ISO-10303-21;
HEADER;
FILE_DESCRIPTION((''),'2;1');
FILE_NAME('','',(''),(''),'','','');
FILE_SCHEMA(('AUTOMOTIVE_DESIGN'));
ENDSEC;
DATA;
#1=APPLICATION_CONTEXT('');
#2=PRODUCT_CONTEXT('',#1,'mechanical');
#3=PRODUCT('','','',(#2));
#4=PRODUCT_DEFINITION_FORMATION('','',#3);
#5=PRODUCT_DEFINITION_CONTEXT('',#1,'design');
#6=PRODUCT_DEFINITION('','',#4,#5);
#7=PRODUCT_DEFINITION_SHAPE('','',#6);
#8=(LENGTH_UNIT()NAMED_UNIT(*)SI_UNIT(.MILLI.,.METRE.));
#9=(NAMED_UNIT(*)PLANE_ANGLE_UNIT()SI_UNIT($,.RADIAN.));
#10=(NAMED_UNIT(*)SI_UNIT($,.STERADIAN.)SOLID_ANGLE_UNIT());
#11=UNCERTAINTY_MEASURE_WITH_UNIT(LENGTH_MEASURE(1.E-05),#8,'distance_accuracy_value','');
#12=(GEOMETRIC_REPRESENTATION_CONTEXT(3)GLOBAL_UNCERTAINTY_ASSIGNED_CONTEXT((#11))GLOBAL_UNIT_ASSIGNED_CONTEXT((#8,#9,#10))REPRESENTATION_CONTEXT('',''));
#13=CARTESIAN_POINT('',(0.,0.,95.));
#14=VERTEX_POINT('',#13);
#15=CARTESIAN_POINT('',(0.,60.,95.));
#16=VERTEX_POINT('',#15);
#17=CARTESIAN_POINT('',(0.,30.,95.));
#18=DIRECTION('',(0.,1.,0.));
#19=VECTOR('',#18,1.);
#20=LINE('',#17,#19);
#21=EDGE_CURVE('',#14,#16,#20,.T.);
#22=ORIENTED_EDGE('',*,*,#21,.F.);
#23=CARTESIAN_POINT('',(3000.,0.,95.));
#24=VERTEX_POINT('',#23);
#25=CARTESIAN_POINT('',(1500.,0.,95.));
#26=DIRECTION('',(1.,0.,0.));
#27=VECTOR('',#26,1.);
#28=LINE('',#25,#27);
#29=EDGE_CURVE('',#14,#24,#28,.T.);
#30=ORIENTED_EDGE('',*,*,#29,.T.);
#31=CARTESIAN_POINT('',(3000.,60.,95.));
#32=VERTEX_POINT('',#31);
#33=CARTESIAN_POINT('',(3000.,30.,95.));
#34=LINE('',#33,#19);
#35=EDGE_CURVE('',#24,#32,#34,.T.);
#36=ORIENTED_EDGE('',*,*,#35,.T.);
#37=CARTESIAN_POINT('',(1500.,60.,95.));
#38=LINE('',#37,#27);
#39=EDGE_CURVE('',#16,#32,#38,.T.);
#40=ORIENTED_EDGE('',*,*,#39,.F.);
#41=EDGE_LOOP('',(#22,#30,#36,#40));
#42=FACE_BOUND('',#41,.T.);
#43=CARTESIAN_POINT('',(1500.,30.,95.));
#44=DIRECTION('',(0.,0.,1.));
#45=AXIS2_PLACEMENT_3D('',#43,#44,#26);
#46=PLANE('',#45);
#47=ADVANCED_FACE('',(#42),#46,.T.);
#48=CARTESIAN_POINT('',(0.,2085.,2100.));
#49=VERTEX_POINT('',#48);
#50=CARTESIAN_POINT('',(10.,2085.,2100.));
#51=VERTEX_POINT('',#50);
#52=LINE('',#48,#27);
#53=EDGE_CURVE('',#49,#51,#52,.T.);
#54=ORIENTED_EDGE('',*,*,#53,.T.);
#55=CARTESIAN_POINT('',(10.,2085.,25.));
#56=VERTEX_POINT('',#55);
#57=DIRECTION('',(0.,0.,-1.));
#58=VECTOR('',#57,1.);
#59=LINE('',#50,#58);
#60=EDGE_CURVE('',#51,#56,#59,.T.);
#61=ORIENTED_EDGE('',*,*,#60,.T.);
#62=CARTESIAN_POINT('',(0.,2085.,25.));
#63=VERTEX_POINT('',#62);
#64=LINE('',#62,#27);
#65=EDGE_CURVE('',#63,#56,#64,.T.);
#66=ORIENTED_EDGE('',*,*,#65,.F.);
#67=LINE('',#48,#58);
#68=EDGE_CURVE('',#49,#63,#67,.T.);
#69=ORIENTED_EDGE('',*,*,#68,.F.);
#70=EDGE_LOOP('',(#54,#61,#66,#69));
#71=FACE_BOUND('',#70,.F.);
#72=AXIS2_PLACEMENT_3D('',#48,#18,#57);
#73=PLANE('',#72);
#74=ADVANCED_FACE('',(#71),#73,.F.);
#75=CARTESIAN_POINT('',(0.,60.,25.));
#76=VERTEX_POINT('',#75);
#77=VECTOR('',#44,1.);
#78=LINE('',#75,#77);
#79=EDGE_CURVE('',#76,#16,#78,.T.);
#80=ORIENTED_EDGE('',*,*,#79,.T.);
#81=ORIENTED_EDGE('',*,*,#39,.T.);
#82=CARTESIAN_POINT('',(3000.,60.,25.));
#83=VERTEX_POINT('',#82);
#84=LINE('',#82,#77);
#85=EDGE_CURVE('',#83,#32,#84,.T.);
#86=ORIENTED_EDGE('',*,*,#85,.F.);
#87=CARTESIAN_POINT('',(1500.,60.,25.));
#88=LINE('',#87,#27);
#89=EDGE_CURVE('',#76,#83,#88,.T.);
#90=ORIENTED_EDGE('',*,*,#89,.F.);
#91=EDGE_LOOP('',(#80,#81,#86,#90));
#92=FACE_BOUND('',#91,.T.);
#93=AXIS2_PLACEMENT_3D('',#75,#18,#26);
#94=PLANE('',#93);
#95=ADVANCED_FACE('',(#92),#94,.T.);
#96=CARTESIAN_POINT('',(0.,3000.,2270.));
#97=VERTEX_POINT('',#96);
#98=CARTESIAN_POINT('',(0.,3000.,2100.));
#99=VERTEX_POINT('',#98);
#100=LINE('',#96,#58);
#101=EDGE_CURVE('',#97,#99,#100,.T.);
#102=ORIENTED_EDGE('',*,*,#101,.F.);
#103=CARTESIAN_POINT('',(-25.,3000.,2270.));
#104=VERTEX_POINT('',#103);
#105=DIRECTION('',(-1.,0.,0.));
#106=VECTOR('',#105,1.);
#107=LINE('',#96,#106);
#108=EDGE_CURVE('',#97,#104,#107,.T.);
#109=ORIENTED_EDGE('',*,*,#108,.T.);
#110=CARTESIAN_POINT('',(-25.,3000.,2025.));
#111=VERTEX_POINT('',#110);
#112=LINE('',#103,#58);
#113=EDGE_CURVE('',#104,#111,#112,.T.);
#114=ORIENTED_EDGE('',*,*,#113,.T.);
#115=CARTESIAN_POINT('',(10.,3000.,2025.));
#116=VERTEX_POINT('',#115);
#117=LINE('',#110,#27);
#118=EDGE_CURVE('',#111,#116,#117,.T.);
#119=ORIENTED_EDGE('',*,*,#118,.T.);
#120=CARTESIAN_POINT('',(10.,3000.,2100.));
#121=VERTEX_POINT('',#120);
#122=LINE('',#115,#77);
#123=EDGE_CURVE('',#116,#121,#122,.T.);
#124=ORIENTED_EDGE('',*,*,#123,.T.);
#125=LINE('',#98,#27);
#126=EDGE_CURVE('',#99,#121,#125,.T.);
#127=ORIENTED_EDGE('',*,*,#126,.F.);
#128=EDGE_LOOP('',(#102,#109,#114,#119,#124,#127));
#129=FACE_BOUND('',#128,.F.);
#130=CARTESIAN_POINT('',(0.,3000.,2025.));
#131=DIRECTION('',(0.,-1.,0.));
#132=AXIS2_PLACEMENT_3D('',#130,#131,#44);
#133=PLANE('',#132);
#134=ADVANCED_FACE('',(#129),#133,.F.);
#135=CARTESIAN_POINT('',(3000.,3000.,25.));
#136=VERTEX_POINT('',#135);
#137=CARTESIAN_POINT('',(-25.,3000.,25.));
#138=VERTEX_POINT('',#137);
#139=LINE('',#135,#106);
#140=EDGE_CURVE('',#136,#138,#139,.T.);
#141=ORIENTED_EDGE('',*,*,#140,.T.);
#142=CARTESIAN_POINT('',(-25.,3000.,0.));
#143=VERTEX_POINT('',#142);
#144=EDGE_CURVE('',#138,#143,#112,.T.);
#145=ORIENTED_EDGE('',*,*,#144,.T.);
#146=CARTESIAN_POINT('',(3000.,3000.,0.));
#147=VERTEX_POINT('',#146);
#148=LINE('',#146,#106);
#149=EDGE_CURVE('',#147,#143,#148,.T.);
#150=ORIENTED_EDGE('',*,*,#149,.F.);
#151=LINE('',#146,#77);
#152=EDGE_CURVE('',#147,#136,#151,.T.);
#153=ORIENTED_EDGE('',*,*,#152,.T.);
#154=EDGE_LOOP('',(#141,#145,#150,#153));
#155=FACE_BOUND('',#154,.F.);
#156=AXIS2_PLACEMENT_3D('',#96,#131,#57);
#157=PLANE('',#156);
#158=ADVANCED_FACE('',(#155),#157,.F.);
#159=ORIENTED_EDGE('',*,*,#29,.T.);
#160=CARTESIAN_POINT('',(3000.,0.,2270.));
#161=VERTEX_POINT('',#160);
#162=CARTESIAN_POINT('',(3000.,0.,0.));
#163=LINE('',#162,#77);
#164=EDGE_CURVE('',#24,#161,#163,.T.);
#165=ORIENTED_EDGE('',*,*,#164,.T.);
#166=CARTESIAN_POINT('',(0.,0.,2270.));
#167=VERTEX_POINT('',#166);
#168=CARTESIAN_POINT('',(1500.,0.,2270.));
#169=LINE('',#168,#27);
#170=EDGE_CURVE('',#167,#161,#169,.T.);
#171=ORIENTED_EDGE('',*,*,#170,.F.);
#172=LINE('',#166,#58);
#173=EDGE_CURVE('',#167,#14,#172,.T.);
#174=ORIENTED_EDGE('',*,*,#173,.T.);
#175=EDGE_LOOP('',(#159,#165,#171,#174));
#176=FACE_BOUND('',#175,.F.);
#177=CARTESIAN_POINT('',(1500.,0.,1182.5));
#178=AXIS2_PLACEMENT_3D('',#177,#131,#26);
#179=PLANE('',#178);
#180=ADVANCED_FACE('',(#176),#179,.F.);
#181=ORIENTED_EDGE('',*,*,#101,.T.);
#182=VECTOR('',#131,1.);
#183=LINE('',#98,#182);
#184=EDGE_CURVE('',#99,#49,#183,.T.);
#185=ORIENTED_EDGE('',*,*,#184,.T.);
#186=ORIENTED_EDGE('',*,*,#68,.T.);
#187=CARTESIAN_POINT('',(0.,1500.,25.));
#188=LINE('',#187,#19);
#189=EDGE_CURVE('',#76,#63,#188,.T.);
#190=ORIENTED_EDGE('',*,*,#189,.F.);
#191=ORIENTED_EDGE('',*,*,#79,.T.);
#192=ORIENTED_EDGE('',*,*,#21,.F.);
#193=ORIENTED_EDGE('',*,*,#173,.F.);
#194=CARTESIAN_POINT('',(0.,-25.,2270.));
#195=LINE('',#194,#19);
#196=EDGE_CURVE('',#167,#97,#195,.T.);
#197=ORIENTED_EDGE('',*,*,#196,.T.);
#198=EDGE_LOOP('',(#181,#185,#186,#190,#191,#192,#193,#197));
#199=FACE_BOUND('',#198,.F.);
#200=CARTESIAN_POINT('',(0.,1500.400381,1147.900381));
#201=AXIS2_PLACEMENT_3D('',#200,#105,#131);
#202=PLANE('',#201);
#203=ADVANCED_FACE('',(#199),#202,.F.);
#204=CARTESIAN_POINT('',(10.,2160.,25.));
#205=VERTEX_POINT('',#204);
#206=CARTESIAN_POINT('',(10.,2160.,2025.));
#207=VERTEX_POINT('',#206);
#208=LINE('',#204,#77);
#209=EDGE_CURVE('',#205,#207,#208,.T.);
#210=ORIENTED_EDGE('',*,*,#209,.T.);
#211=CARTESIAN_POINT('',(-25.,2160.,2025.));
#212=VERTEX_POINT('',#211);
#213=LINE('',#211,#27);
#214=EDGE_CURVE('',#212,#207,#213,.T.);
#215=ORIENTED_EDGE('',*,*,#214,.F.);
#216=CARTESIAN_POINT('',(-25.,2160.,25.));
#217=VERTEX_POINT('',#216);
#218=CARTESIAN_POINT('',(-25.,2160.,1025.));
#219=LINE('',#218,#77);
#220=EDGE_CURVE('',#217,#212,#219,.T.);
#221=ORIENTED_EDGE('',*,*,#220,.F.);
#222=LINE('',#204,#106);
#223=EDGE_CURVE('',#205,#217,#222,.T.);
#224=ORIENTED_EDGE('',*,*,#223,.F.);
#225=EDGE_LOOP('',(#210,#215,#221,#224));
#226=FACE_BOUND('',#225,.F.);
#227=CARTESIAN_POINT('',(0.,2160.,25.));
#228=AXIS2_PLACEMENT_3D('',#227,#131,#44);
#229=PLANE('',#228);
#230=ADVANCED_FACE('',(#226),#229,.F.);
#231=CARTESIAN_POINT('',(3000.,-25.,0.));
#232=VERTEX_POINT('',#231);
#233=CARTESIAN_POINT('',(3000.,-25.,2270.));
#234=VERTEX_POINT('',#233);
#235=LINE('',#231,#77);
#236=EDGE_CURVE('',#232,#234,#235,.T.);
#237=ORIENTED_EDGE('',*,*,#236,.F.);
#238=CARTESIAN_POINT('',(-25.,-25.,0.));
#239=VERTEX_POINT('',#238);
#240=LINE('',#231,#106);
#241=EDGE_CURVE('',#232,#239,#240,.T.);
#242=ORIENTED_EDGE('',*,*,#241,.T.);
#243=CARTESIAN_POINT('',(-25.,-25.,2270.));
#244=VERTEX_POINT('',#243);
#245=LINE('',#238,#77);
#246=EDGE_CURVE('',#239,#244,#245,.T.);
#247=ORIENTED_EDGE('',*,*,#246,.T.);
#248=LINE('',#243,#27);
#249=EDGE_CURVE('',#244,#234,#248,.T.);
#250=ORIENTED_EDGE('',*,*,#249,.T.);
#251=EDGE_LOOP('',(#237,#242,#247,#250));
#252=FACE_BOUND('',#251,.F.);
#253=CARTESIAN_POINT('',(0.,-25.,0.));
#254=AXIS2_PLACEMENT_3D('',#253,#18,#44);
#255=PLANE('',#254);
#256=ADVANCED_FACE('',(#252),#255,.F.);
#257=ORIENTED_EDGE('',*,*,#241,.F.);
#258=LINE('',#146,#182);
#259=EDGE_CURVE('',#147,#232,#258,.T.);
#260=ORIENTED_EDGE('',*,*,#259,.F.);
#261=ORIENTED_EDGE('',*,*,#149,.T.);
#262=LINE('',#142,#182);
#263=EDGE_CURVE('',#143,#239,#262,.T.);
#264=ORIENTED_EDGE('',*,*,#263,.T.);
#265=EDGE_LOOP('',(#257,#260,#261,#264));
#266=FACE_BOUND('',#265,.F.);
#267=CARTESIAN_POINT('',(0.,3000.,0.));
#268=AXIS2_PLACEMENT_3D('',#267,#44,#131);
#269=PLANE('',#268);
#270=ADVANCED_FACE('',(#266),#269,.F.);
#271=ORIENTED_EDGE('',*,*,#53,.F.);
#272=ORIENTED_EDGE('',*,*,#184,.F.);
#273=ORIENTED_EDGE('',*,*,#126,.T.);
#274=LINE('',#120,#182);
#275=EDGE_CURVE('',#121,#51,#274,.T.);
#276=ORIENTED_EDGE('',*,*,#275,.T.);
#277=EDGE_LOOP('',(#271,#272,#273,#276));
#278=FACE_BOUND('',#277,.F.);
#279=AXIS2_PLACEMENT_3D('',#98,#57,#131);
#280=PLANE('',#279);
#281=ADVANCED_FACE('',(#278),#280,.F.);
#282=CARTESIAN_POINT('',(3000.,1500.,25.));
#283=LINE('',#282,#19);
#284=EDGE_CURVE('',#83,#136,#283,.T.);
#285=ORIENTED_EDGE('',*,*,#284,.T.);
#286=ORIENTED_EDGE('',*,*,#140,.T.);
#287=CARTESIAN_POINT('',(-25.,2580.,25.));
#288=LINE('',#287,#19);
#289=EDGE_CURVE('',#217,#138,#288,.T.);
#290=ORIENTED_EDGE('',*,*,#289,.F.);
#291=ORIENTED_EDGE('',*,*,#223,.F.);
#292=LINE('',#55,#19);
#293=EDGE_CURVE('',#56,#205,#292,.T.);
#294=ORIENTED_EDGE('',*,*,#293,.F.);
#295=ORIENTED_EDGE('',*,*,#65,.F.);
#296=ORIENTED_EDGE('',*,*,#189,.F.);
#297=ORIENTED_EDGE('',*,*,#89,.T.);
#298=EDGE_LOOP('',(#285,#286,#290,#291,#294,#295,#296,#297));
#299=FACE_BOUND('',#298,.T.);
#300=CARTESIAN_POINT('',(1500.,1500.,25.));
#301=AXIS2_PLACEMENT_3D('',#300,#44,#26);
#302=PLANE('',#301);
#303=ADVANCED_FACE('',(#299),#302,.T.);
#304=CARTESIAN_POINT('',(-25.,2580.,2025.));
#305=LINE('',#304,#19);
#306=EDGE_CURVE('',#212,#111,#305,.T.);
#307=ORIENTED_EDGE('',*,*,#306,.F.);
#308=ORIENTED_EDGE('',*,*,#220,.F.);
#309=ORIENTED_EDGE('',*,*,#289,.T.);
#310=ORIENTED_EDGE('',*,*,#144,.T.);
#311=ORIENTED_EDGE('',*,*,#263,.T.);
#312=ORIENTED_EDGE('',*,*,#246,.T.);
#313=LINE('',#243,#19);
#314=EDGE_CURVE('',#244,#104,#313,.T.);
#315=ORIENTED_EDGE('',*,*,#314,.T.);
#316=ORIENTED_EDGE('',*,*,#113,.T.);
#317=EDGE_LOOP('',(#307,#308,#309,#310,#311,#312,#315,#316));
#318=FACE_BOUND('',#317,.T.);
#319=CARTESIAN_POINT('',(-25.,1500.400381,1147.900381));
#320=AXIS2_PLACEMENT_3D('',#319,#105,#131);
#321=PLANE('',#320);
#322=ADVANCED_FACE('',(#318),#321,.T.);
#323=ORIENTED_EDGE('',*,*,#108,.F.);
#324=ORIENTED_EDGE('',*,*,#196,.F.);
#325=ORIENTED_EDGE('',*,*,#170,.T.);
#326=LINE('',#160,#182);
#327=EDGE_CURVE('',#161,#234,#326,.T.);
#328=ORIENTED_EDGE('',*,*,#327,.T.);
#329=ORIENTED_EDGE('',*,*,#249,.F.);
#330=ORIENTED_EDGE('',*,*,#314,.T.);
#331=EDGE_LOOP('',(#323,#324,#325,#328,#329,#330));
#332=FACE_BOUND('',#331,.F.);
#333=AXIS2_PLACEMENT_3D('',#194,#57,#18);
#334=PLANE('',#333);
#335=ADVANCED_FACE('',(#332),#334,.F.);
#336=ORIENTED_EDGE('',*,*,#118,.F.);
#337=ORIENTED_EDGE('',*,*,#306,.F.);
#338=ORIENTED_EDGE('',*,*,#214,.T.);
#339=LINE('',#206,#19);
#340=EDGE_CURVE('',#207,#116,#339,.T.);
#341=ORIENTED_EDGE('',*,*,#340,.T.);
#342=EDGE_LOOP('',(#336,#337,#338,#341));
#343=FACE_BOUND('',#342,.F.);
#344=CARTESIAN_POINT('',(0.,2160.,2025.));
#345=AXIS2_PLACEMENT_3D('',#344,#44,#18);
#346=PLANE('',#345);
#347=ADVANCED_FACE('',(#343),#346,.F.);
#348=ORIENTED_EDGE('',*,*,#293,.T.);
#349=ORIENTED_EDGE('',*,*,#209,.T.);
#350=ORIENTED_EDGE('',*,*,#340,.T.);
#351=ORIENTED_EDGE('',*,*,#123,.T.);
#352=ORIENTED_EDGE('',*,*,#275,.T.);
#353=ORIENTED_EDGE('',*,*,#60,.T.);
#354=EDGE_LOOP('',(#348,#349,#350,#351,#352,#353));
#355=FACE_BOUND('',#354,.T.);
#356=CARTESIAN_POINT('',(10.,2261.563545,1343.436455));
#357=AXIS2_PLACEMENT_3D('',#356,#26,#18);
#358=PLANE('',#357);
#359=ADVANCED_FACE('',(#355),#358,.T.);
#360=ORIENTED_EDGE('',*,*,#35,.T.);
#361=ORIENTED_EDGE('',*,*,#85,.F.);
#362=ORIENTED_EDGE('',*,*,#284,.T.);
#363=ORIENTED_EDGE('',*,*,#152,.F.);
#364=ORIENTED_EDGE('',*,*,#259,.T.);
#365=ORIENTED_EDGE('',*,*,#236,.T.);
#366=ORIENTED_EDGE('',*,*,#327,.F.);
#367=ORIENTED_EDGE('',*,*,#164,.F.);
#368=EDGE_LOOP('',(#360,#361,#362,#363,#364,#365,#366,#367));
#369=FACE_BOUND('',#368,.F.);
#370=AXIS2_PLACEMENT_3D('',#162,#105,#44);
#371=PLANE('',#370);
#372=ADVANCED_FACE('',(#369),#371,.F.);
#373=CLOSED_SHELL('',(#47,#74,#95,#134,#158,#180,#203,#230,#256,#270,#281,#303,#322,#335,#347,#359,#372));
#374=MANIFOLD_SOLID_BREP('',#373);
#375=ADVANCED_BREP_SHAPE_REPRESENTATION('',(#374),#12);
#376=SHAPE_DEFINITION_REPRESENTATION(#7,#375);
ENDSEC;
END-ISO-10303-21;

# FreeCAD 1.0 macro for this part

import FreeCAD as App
import Part
import Sketcher

doc = App.newDocument("Part")
body = doc.addObject("PartDesign::Body", "Body")

# Sketch on XY plane
sketch1 = doc.addObject("Sketcher::SketchObject", "Sketch")
body.addObject(sketch1)
sketch1.AttachmentSupport = (doc.XY_Plane, [""])
sketch1.MapMode = "FlatFace"
sketch1.addGeometry([
    Part.LineSegment(App.Vector(0, 3000, 0), App.Vector(0, 0, 0)),
    Part.LineSegment(App.Vector(0, 0, 0), App.Vector(3000, 0, 0)),
    Part.LineSegment(App.Vector(3000, 0, 0), App.Vector(3000, 3000, 0)),
    Part.LineSegment(App.Vector(3000, 3000, 0), App.Vector(0, 3000, 0)),
], False)
sketch1.addConstraint([
    Sketcher.Constraint("Coincident", 0, 2, 1, 1),
    Sketcher.Constraint("Coincident", 1, 2, 2, 1),
    Sketcher.Constraint("Coincident", 2, 2, 3, 1),
    Sketcher.Constraint("Coincident", 3, 2, 0, 1),
    Sketcher.Constraint("Vertical", 0),
    Sketcher.Constraint("Horizontal", 1),
    Sketcher.Constraint("Vertical", 2),
    Sketcher.Constraint("Horizontal", 3),
    Sketcher.Constraint("Coincident", 0, 2, -1, 1),
    Sketcher.Constraint("Equal", 3, 0),
    Sketcher.Constraint("DistanceX", 1, 1, 1, 2, 3000.0),
])
pad1 = doc.addObject("PartDesign::Pad", "Pad")
body.addObject(pad1)
pad1.Profile = sketch1
pad1.Length = 25

# Sketch on XY plane
sketch2 = doc.addObject("Sketcher::SketchObject", "Sketch001")
body.addObject(sketch2)
sketch2.AttachmentSupport = (doc.XY_Plane, [""])
sketch2.MapMode = "FlatFace"
sketch2.AttachmentOffset = App.Placement(App.Vector(0, 0, 25), App.Rotation())
sketch2.addGeometry([
    Part.LineSegment(App.Vector(0, 60, 0), App.Vector(0, 0, 0)),
    Part.LineSegment(App.Vector(0, 0, 0), App.Vector(3000, 0, 0)),
    Part.LineSegment(App.Vector(3000, 0, 0), App.Vector(3000, 60, 0)),
    Part.LineSegment(App.Vector(3000, 60, 0), App.Vector(0, 60, 0)),
], False)
sketch2.addConstraint([
    Sketcher.Constraint("Coincident", 0, 2, 1, 1),
    Sketcher.Constraint("Coincident", 1, 2, 2, 1),
    Sketcher.Constraint("Coincident", 2, 2, 3, 1),
    Sketcher.Constraint("Coincident", 3, 2, 0, 1),
    Sketcher.Constraint("Vertical", 0),
    Sketcher.Constraint("Horizontal", 1),
    Sketcher.Constraint("Vertical", 2),
    Sketcher.Constraint("Horizontal", 3),
    Sketcher.Constraint("Coincident", 0, 2, -1, 1),
    Sketcher.Constraint("DistanceX", 1, 1, 1, 2, 3000.0),
    Sketcher.Constraint("DistanceY", 0, 2, 0, 1, 60.0),
])
pad2 = doc.addObject("PartDesign::Pad", "Pad001")
body.addObject(pad2)
pad2.Profile = sketch2
pad2.Length = 70

# Sketch on XZ plane
sketch3 = doc.addObject("Sketcher::SketchObject", "Sketch002")
body.addObject(sketch3)
sketch3.AttachmentSupport = (doc.XZ_Plane, [""])
sketch3.MapMode = "FlatFace"
sketch3.addGeometry([
    Part.LineSegment(App.Vector(0, 2270, 0), App.Vector(0, 0, 0)),
    Part.LineSegment(App.Vector(0, 0, 0), App.Vector(3000, 0, 0)),
    Part.LineSegment(App.Vector(3000, 0, 0), App.Vector(3000, 2270, 0)),
    Part.LineSegment(App.Vector(3000, 2270, 0), App.Vector(0, 2270, 0)),
], False)
sketch3.addConstraint([
    Sketcher.Constraint("Coincident", 0, 2, 1, 1),
    Sketcher.Constraint("Coincident", 1, 2, 2, 1),
    Sketcher.Constraint("Coincident", 2, 2, 3, 1),
    Sketcher.Constraint("Coincident", 3, 2, 0, 1),
    Sketcher.Constraint("Vertical", 0),
    Sketcher.Constraint("Horizontal", 1),
    Sketcher.Constraint("Vertical", 2),
    Sketcher.Constraint("Horizontal", 3),
    Sketcher.Constraint("Coincident", 0, 2, -1, 1),
    Sketcher.Constraint("DistanceX", 1, 1, 1, 2, 3000.0),
    Sketcher.Constraint("DistanceY", 0, 2, 0, 1, 2270.0),
])
pad3 = doc.addObject("PartDesign::Pad", "Pad002")
body.addObject(pad3)
pad3.Profile = sketch3
pad3.Length = 25

# Sketch on YZ plane
sketch4 = doc.addObject("Sketcher::SketchObject", "Sketch003")
body.addObject(sketch4)
sketch4.AttachmentSupport = (doc.YZ_Plane, [""])
sketch4.MapMode = "FlatFace"
sketch4.addGeometry([
    Part.LineSegment(App.Vector(3000, 2270, 0), App.Vector(3000, 0, 0)),
    Part.LineSegment(App.Vector(3000, 0, 0), App.Vector(-25, 0, 0)),
    Part.LineSegment(App.Vector(-25, 0, 0), App.Vector(-25, 2270, 0)),
    Part.LineSegment(App.Vector(-25, 2270, 0), App.Vector(3000, 2270, 0)),
], False)
sketch4.addConstraint([
    Sketcher.Constraint("Coincident", 0, 2, 1, 1),
    Sketcher.Constraint("Coincident", 1, 2, 2, 1),
    Sketcher.Constraint("Coincident", 2, 2, 3, 1),
    Sketcher.Constraint("Coincident", 3, 2, 0, 1),
    Sketcher.Constraint("Vertical", 0),
    Sketcher.Constraint("Horizontal", 1),
    Sketcher.Constraint("Vertical", 2),
    Sketcher.Constraint("Horizontal", 3),
    Sketcher.Constraint("PointOnObject", 0, 2, -1),
    Sketcher.Constraint("DistanceX", 1, 2, 1, 1, 3025.0),
    Sketcher.Constraint("DistanceY", 0, 2, 0, 1, 2270.0),
    Sketcher.Constraint("DistanceX", -1, 1, 0, 2, 3000.0),
])
pad4 = doc.addObject("PartDesign::Pad", "Pad003")
body.addObject(pad4)
pad4.Profile = sketch4
pad4.Length = 25
pad4.Reversed = True

# Sketch on YZ plane
sketch5 = doc.addObject("Sketcher::SketchObject", "Sketch004")
body.addObject(sketch5)
sketch5.AttachmentSupport = (doc.YZ_Plane, [""])
sketch5.MapMode = "FlatFace"
sketch5.addGeometry([
    Part.LineSegment(App.Vector(2160, 2025, 0), App.Vector(2160, 25, 0)),
    Part.LineSegment(App.Vector(2160, 25, 0), App.Vector(3000, 25, 0)),
    Part.LineSegment(App.Vector(3000, 25, 0), App.Vector(3000, 2025, 0)),
    Part.LineSegment(App.Vector(3000, 2025, 0), App.Vector(2160, 2025, 0)),
], False)
sketch5.addConstraint([
    Sketcher.Constraint("Coincident", 0, 2, 1, 1),
    Sketcher.Constraint("Coincident", 1, 2, 2, 1),
    Sketcher.Constraint("Coincident", 2, 2, 3, 1),
    Sketcher.Constraint("Coincident", 3, 2, 0, 1),
    Sketcher.Constraint("Vertical", 0),
    Sketcher.Constraint("Horizontal", 1),
    Sketcher.Constraint("Vertical", 2),
    Sketcher.Constraint("Horizontal", 3),
    Sketcher.Constraint("DistanceX", 1, 1, 1, 2, 840.0),
    Sketcher.Constraint("DistanceY", 0, 2, 0, 1, 2000.0),
    Sketcher.Constraint("DistanceX", -1, 1, 0, 2, 2160.0),
    Sketcher.Constraint("DistanceY", -1, 1, 0, 2, 25.0),
])
pocket1 = doc.addObject("PartDesign::Pocket", "Pocket")
body.addObject(pocket1)
pocket1.Profile = sketch5
pocket1.Length = 25

# Sketch on YZ plane
sketch6 = doc.addObject("Sketcher::SketchObject", "Sketch005")
body.addObject(sketch6)
sketch6.AttachmentSupport = (doc.YZ_Plane, [""])
sketch6.MapMode = "FlatFace"
sketch6.addGeometry([
    Part.LineSegment(App.Vector(2085, 25, 0), App.Vector(2160, 25, 0)),  # 0
    Part.LineSegment(App.Vector(2160, 25, 0), App.Vector(2160, 2025, 0)),  # 1
    Part.LineSegment(App.Vector(2160, 2025, 0), App.Vector(3000, 2025, 0)),  # 2
    Part.LineSegment(App.Vector(3000, 2025, 0), App.Vector(3000, 2100, 0)),  # 3
    Part.LineSegment(App.Vector(3000, 2100, 0), App.Vector(2085, 2100, 0)),  # 4
    Part.LineSegment(App.Vector(2085, 2100, 0), App.Vector(2085, 25, 0)),  # 5
], False)
sketch6.addConstraint([
    Sketcher.Constraint("Coincident", 0, 2, 1, 1),
    Sketcher.Constraint("Coincident", 1, 2, 2, 1),
    Sketcher.Constraint("Coincident", 2, 2, 3, 1),
    Sketcher.Constraint("Coincident", 3, 2, 4, 1),
    Sketcher.Constraint("Coincident", 4, 2, 5, 1),
    Sketcher.Constraint("Coincident", 5, 2, 0, 1),
    Sketcher.Constraint("Horizontal", 0),
    Sketcher.Constraint("Vertical", 1),
    Sketcher.Constraint("Horizontal", 2),
    Sketcher.Constraint("Vertical", 3),
    Sketcher.Constraint("Horizontal", 4),
    Sketcher.Constraint("Vertical", 5),
    Sketcher.Constraint("Equal", 0, 3),
    Sketcher.Constraint("DistanceX", 0, 1, 0, 2, 75.0),
    Sketcher.Constraint("DistanceX", 2, 1, 2, 2, 840.0),
    Sketcher.Constraint("DistanceY", 1, 1, 1, 2, 2000.0),
    Sketcher.Constraint("DistanceX", -1, 1, 0, 2, 2160.0),
    Sketcher.Constraint("DistanceY", -1, 1, 0, 2, 25.0),
])
pad5 = doc.addObject("PartDesign::Pad", "Pad004")
body.addObject(pad5)
pad5.Profile = sketch6
pad5.Length = 10

doc.recompute()
